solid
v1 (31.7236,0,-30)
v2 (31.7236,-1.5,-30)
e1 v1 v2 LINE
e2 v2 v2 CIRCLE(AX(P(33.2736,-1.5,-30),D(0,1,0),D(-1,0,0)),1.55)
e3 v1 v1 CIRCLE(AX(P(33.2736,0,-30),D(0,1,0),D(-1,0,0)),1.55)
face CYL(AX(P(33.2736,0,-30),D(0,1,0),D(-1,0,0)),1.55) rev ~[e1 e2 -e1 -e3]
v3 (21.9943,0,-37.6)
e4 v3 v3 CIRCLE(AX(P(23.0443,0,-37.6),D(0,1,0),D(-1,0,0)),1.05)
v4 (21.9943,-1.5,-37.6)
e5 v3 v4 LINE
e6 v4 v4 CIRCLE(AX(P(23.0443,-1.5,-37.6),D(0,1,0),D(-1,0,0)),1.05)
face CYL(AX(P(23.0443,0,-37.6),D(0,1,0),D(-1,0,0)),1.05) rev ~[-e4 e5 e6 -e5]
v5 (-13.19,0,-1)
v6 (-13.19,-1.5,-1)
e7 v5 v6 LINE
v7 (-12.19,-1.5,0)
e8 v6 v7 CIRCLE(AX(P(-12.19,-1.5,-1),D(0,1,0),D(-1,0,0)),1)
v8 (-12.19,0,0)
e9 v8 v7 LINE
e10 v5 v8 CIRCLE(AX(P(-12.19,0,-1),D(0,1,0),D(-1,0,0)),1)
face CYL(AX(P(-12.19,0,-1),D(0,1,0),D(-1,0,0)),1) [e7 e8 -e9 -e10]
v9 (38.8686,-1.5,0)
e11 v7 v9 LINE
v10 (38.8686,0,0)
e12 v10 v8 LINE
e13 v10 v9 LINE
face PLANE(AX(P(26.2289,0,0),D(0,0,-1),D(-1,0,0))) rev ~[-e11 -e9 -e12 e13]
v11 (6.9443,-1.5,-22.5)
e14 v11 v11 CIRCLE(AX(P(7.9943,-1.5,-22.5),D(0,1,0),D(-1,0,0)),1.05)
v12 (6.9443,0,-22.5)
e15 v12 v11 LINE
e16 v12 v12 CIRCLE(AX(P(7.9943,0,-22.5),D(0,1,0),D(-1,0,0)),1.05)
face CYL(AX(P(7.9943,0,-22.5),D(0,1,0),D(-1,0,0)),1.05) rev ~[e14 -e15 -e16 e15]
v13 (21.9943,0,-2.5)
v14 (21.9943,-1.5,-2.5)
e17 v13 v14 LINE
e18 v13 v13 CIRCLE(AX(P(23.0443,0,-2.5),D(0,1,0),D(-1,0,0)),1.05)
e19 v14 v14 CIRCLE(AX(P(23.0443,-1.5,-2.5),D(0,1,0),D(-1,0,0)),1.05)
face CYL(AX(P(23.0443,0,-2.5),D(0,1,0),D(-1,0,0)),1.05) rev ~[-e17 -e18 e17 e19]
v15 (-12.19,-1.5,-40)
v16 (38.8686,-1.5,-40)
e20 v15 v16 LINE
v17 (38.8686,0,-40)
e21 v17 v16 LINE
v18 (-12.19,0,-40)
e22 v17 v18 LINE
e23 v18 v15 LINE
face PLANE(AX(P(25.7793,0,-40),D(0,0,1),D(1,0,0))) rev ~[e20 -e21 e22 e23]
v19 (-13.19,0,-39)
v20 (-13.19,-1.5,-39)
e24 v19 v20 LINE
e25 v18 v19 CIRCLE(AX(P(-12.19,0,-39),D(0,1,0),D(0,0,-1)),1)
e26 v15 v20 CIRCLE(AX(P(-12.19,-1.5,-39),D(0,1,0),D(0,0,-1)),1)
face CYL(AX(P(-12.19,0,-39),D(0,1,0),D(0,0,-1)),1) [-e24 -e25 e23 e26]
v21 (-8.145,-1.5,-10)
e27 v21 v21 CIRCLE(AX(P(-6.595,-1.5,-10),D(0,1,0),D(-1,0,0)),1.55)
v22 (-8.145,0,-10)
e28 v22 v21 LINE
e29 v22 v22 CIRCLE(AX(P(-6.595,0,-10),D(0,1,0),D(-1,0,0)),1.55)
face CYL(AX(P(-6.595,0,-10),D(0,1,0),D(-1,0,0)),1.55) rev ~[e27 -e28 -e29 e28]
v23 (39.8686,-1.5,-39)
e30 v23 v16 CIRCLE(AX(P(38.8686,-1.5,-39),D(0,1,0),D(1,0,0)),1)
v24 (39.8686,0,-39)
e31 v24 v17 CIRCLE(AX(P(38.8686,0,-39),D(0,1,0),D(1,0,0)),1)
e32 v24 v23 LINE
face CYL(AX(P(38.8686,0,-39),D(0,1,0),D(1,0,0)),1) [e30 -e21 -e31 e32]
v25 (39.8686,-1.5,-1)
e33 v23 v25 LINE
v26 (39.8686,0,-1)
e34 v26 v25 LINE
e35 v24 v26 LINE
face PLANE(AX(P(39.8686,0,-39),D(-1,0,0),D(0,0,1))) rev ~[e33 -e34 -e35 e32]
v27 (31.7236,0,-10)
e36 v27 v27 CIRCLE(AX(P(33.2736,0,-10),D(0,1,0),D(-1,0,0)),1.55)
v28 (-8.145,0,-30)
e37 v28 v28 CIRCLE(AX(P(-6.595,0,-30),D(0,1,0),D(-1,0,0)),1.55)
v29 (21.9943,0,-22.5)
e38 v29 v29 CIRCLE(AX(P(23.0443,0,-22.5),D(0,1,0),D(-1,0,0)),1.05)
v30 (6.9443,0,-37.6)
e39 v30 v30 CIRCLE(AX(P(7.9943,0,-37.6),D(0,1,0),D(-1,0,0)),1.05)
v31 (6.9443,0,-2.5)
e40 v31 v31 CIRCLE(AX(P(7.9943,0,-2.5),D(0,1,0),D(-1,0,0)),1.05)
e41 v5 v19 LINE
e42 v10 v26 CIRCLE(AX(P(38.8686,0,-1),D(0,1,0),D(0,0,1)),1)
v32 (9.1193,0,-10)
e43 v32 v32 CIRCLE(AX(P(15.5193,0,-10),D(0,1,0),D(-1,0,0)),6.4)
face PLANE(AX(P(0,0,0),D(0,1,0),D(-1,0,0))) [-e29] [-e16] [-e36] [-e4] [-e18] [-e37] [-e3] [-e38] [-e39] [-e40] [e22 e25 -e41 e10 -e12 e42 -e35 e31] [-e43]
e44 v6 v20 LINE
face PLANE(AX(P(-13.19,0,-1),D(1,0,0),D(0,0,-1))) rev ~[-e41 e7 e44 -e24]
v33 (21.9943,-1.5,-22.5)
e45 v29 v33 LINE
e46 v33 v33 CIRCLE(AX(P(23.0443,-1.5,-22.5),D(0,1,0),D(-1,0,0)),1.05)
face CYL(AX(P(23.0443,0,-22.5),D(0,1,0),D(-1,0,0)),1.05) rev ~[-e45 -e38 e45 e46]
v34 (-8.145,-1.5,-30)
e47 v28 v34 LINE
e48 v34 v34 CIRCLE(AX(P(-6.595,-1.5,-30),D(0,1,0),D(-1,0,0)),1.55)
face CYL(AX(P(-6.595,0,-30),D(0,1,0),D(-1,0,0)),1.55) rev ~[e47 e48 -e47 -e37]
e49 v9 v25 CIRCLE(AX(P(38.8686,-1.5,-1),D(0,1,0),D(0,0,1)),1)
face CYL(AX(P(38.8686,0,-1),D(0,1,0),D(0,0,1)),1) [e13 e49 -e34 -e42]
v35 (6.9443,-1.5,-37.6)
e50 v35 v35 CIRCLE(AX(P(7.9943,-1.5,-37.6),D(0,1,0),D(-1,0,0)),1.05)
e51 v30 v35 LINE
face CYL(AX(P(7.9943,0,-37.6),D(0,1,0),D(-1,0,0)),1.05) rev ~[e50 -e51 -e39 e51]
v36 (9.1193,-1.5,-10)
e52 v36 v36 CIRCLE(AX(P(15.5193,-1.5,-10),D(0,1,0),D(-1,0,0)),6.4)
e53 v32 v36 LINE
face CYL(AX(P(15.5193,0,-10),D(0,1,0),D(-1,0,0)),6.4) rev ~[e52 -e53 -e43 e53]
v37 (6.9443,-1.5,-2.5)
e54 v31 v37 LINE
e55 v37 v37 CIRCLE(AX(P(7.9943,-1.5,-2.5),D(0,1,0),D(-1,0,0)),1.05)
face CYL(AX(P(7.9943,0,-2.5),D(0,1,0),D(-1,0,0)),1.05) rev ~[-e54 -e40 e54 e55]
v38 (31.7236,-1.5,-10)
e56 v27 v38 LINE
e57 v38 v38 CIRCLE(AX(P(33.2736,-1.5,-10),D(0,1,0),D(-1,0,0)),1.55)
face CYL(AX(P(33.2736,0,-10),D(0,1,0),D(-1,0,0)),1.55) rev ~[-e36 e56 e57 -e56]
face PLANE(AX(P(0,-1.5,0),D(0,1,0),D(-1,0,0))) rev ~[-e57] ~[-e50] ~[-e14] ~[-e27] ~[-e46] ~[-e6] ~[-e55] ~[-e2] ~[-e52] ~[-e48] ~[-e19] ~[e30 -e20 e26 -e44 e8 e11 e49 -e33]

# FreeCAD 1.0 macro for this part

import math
import FreeCAD as App
import Part
import Sketcher

V = App.Vector

doc = App.newDocument("Part")
body = doc.addObject("PartDesign::Body", "Body")

# Sketch on XZ plane
sketch1 = body.newObject("Sketcher::SketchObject", "Sketch")
sketch1.AttachmentSupport = (doc.getObject("XZ_Plane"), [""])
sketch1.MapMode = "FlatFace"
sketch1.addGeometry(Part.ArcOfCircle(Part.Circle(V(38.9, -1, 0), V(0, 0, 1), 1), math.radians(0), math.radians(90)), False)
sketch1.addGeometry(Part.LineSegment(V(39.9, -1, 0), V(39.9, -39, 0)), False)
sketch1.addGeometry(Part.ArcOfCircle(Part.Circle(V(38.9, -39, 0), V(0, 0, 1), 1), math.radians(-90), math.radians(0)), False)
sketch1.addGeometry(Part.LineSegment(V(38.9, -40, 0), V(-12.2, -40, 0)), False)
sketch1.addGeometry(Part.ArcOfCircle(Part.Circle(V(-12.2, -39, 0), V(0, 0, 1), 1), math.radians(180), math.radians(270)), False)
sketch1.addGeometry(Part.LineSegment(V(-13.2, -39, 0), V(-13.2, -1, 0)), False)
sketch1.addGeometry(Part.ArcOfCircle(Part.Circle(V(-12.2, -1, 0), V(0, 0, 1), 1), math.radians(90), math.radians(180)), False)
sketch1.addGeometry(Part.LineSegment(V(-12.2, 0, 0), V(38.9, 0, 0)), False)
sketch1.addGeometry(Part.Circle(V(8, -2.5, 0), V(0, 0, 1), 1.1), False)
sketch1.addGeometry(Part.Circle(V(23, -37.6, 0), V(0, 0, 1), 1.1), False)
sketch1.addGeometry(Part.Circle(V(23, -22.5, 0), V(0, 0, 1), 1.1), False)
sketch1.addGeometry(Part.Circle(V(8, -37.6, 0), V(0, 0, 1), 1.1), False)
sketch1.addGeometry(Part.Circle(V(8, -22.5, 0), V(0, 0, 1), 1.1), False)
sketch1.addGeometry(Part.Circle(V(15.5, -10, 0), V(0, 0, 1), 6.4), False)
sketch1.addGeometry(Part.Circle(V(23, -2.5, 0), V(0, 0, 1), 1.1), False)
sketch1.addGeometry(Part.Circle(V(33.3, -10, 0), V(0, 0, 1), 1.6), False)
sketch1.addGeometry(Part.Circle(V(33.3, -30, 0), V(0, 0, 1), 1.6), False)
sketch1.addGeometry(Part.Circle(V(-6.6, -10, 0), V(0, 0, 1), 1.6), False)
sketch1.addGeometry(Part.Circle(V(-6.6, -30, 0), V(0, 0, 1), 1.6), False)
sketch1.addConstraint(Sketcher.Constraint("Tangent", 0, 1, 1, 1))
sketch1.addConstraint(Sketcher.Constraint("Tangent", 1, 2, 2, 2))
sketch1.addConstraint(Sketcher.Constraint("Tangent", 2, 1, 3, 1))
sketch1.addConstraint(Sketcher.Constraint("Tangent", 3, 2, 4, 2))
sketch1.addConstraint(Sketcher.Constraint("Tangent", 4, 1, 5, 1))
sketch1.addConstraint(Sketcher.Constraint("Tangent", 5, 2, 6, 2))
sketch1.addConstraint(Sketcher.Constraint("Tangent", 6, 1, 7, 1))
sketch1.addConstraint(Sketcher.Constraint("Tangent", 7, 2, 0, 2))
sketch1.addConstraint(Sketcher.Constraint("Vertical", 1))
sketch1.addConstraint(Sketcher.Constraint("Horizontal", 3))
sketch1.addConstraint(Sketcher.Constraint("Vertical", 5))
sketch1.addConstraint(Sketcher.Constraint("Horizontal", 7))
sketch1.addConstraint(Sketcher.Constraint("Equal", 0, 2))
sketch1.addConstraint(Sketcher.Constraint("Equal", 2, 4))
sketch1.addConstraint(Sketcher.Constraint("Equal", 4, 6))
sketch1.addConstraint(Sketcher.Constraint("Equal", 8, 9))
sketch1.addConstraint(Sketcher.Constraint("Equal", 9, 10))
sketch1.addConstraint(Sketcher.Constraint("Equal", 10, 11))
sketch1.addConstraint(Sketcher.Constraint("Equal", 11, 12))
sketch1.addConstraint(Sketcher.Constraint("Equal", 12, 14))
sketch1.addConstraint(Sketcher.Constraint("Equal", 15, 16))
sketch1.addConstraint(Sketcher.Constraint("Equal", 16, 17))
sketch1.addConstraint(Sketcher.Constraint("Equal", 17, 18))
sketch1.addConstraint(Sketcher.Constraint("PointOnObject", 6, 1, -1))
sketch1.addConstraint(Sketcher.Constraint("Horizontal", 9, 3, 11, 3))
sketch1.addConstraint(Sketcher.Constraint("Horizontal", 10, 3, 12, 3))
sketch1.addConstraint(Sketcher.Constraint("Horizontal", 8, 3, 14, 3))
sketch1.addConstraint(Sketcher.Constraint("Horizontal", 13, 3, 15, 3))
sketch1.addConstraint(Sketcher.Constraint("Horizontal", 15, 3, 17, 3))
sketch1.addConstraint(Sketcher.Constraint("Horizontal", 16, 3, 18, 3))
sketch1.addConstraint(Sketcher.Constraint("Vertical", 9, 3, 10, 3))
sketch1.addConstraint(Sketcher.Constraint("Vertical", 8, 3, 11, 3))
sketch1.addConstraint(Sketcher.Constraint("Vertical", 11, 3, 12, 3))
sketch1.addConstraint(Sketcher.Constraint("Vertical", 10, 3, 14, 3))
sketch1.addConstraint(Sketcher.Constraint("Vertical", 15, 3, 16, 3))
sketch1.addConstraint(Sketcher.Constraint("Vertical", 17, 3, 18, 3))
sketch1.addConstraint(Sketcher.Constraint("Radius", 0, 1.0))
sketch1.addConstraint(Sketcher.Constraint("Diameter", 8, 2.1))
sketch1.addConstraint(Sketcher.Constraint("Diameter", 13, 12.8))
sketch1.addConstraint(Sketcher.Constraint("Diameter", 15, 3.1))
sketch1.addConstraint(Sketcher.Constraint("DistanceY", 1, 2, 1, 1, 38.0))
sketch1.addConstraint(Sketcher.Constraint("DistanceY", 13, 3, -1, 1, 10.0))
sketch1.addConstraint(Sketcher.Constraint("DistanceY", 16, 3, -1, 1, 30.0))
sketch1.addConstraint(Sketcher.Constraint("DistanceY", 10, 3, 8, 3, 20.0))
sketch1.addConstraint(Sketcher.Constraint("DistanceY", 8, 3, -1, 1, 2.5))
sketch1.addConstraint(Sketcher.Constraint("DistanceY", 9, 3, -1, 1, 37.6))
sketch1.addConstraint(Sketcher.Constraint("DistanceX", 4, 3, -1, 1, 12.19))
sketch1.addConstraint(Sketcher.Constraint("DistanceX", 8, 3, 9, 3, 15.05))
sketch1.addConstraint(Sketcher.Constraint("DistanceX", 3, 2, 3, 1, 51.0586))
sketch1.addConstraint(Sketcher.Constraint("DistanceX", 17, 3, -1, 1, 6.595))
sketch1.addConstraint(Sketcher.Constraint("DistanceX", 8, 3, 13, 3, 7.525))
sketch1.addConstraint(Sketcher.Constraint("DistanceX", 15, 3, 0, 3, 5.595))
sketch1.addConstraint(Sketcher.Constraint("DistanceX", -1, 1, 8, 3, 7.9943))
pad1 = body.newObject("PartDesign::Pad", "Pad")
pad1.Profile = sketch1
pad1.Length = 1.5

doc.recompute()
